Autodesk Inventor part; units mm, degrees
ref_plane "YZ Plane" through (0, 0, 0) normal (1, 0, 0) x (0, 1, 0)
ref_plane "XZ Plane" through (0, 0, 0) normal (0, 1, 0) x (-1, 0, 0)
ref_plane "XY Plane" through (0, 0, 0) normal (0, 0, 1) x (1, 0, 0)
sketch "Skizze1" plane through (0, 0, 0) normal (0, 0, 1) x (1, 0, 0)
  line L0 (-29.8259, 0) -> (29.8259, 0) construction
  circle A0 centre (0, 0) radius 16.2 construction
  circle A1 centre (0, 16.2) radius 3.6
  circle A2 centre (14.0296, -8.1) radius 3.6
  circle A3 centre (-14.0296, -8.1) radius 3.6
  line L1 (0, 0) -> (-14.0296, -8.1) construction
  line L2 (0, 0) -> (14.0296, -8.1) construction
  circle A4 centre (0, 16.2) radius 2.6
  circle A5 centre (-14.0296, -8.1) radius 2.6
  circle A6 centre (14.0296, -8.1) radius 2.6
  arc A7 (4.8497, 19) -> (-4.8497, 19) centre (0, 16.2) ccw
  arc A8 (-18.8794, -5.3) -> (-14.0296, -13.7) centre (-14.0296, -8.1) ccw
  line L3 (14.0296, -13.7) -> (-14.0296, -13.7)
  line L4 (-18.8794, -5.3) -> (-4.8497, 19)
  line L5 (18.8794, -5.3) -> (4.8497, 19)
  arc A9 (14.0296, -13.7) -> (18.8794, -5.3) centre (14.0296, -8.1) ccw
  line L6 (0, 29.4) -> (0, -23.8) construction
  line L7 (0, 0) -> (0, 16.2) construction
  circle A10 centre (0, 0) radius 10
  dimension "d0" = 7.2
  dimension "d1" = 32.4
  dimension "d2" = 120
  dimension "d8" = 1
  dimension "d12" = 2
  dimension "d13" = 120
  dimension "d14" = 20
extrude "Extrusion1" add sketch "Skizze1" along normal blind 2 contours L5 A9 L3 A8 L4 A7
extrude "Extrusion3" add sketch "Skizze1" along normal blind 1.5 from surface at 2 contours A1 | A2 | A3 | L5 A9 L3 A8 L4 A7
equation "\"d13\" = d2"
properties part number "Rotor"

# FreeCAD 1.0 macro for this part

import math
import FreeCAD as App
import Part
import Sketcher
Q = App.Units.Quantity

doc = App.newDocument("Part")
body = doc.addObject("PartDesign::Body", "Body")

# Sketch on XY plane
sketch1 = body.newObject("Sketcher::SketchObject", "Sketch")
sketch1.AttachmentSupport = (doc.getObject("XY_Plane"), [""])
sketch1.MapMode = "FlatFace"
sketch1.addGeometry(Part.LineSegment(App.Vector(18.9, -5.3, 0), App.Vector(4.8, 19, 0)), False)
sketch1.addGeometry(Part.ArcOfCircle(Part.Circle(App.Vector(0, 16.2, 0), App.Vector(0, 0, 1), 5.6), math.radians(30), math.radians(150)), False)
sketch1.addGeometry(Part.LineSegment(App.Vector(-4.8, 19, 0), App.Vector(-18.9, -5.3, 0)), False)
sketch1.addGeometry(Part.ArcOfCircle(Part.Circle(App.Vector(-14, -8.1, 0), App.Vector(0, 0, 1), 5.6), math.radians(150), math.radians(270)), False)
sketch1.addGeometry(Part.LineSegment(App.Vector(-14, -13.7, 0), App.Vector(14, -13.7, 0)), False)
sketch1.addGeometry(Part.ArcOfCircle(Part.Circle(App.Vector(14, -8.1, 0), App.Vector(0, 0, 1), 5.6), math.radians(-90), math.radians(30)), False)
sketch1.addGeometry(Part.Circle(App.Vector(-14, -8.1, 0), App.Vector(0, 0, 1), 3.6), False)
sketch1.addGeometry(Part.Circle(App.Vector(14, -8.1, 0), App.Vector(0, 0, 1), 3.6), False)
sketch1.addGeometry(Part.Circle(App.Vector(0, 0, 0), App.Vector(0, 0, 1), 10), False)
sketch1.addGeometry(Part.Circle(App.Vector(0, 16.2, 0), App.Vector(0, 0, 1), 3.6), False)
sketch1.addConstraint(Sketcher.Constraint("Tangent", 0, 2, 1, 1))
sketch1.addConstraint(Sketcher.Constraint("Tangent", 1, 2, 2, 1))
sketch1.addConstraint(Sketcher.Constraint("Tangent", 2, 2, 3, 1))
sketch1.addConstraint(Sketcher.Constraint("Tangent", 3, 2, 4, 1))
sketch1.addConstraint(Sketcher.Constraint("Tangent", 4, 2, 5, 1))
sketch1.addConstraint(Sketcher.Constraint("Tangent", 5, 2, 0, 1))
sketch1.addConstraint(Sketcher.Constraint("Horizontal", 4))
sketch1.addConstraint(Sketcher.Constraint("Coincident", 8, 3, -1, 1))
sketch1.addConstraint(Sketcher.Constraint("Coincident", 6, 3, 3, 3))
sketch1.addConstraint(Sketcher.Constraint("Coincident", 7, 3, 5, 3))
sketch1.addConstraint(Sketcher.Constraint("Coincident", 9, 3, 1, 3))
sketch1.addConstraint(Sketcher.Constraint("Equal", 1, 3))
sketch1.addConstraint(Sketcher.Constraint("Equal", 3, 5))
sketch1.addConstraint(Sketcher.Constraint("Equal", 6, 7))
sketch1.addConstraint(Sketcher.Constraint("Equal", 7, 9))
sketch1.addConstraint(Sketcher.Constraint("Symmetric", 0, 2, 1, 2, -2))
sketch1.addConstraint(Sketcher.Constraint("Diameter", 8, Q("20 mm")))
sketch1.addConstraint(Sketcher.Constraint("Diameter", 6, Q("7.2 mm")))
sketch1.addConstraint(Sketcher.Constraint("Angle", 0, Q("120.0002 deg")))
sketch1.addConstraint(Sketcher.Constraint("Radius", 1, Q("5.6 mm")))
sketch1.addConstraint(Sketcher.Constraint("DistanceY", -1, 1, 0, 2, Q("19 mm")))
sketch1.addConstraint(Sketcher.Constraint("DistanceY", 3, 3, -1, 1, Q("8.1 mm")))
pad1 = body.newObject("PartDesign::Pad", "Pad")
pad1.Profile = sketch1
pad1.Length = 2

# Sketch on XY plane
sketch2 = body.newObject("Sketcher::SketchObject", "Sketch001")
sketch2.AttachmentSupport = (doc.getObject("XY_Plane"), [""])
sketch2.MapMode = "FlatFace"
sketch2.AttachmentOffset = App.Placement(App.Vector(0, 0, 2), App.Rotation())
sketch2.addGeometry(Part.LineSegment(App.Vector(18.9, -5.3, 0), App.Vector(4.8, 19, 0)), False)
sketch2.addGeometry(Part.ArcOfCircle(Part.Circle(App.Vector(0, 16.2, 0), App.Vector(0, 0, 1), 5.6), math.radians(30), math.radians(150)), False)
sketch2.addGeometry(Part.LineSegment(App.Vector(-4.8, 19, 0), App.Vector(-18.9, -5.3, 0)), False)
sketch2.addGeometry(Part.ArcOfCircle(Part.Circle(App.Vector(-14, -8.1, 0), App.Vector(0, 0, 1), 5.6), math.radians(150), math.radians(270)), False)
sketch2.addGeometry(Part.LineSegment(App.Vector(-14, -13.7, 0), App.Vector(14, -13.7, 0)), False)
sketch2.addGeometry(Part.ArcOfCircle(Part.Circle(App.Vector(14, -8.1, 0), App.Vector(0, 0, 1), 5.6), math.radians(-90), math.radians(30)), False)
sketch2.addGeometry(Part.Circle(App.Vector(0, 16.2, 0), App.Vector(0, 0, 1), 2.6), False)
sketch2.addGeometry(Part.Circle(App.Vector(0, 0, 0), App.Vector(0, 0, 1), 10), False)
sketch2.addGeometry(Part.Circle(App.Vector(-14, -8.1, 0), App.Vector(0, 0, 1), 2.6), False)
sketch2.addGeometry(Part.Circle(App.Vector(14, -8.1, 0), App.Vector(0, 0, 1), 2.6), False)
sketch2.addConstraint(Sketcher.Constraint("Tangent", 0, 2, 1, 1))
sketch2.addConstraint(Sketcher.Constraint("Tangent", 1, 2, 2, 1))
sketch2.addConstraint(Sketcher.Constraint("Tangent", 2, 2, 3, 1))
sketch2.addConstraint(Sketcher.Constraint("Tangent", 3, 2, 4, 1))
sketch2.addConstraint(Sketcher.Constraint("Tangent", 4, 2, 5, 1))
sketch2.addConstraint(Sketcher.Constraint("Tangent", 5, 2, 0, 1))
sketch2.addConstraint(Sketcher.Constraint("Horizontal", 4))
sketch2.addConstraint(Sketcher.Constraint("Coincident", 7, 3, -1, 1))
sketch2.addConstraint(Sketcher.Constraint("Coincident", 6, 3, 1, 3))
sketch2.addConstraint(Sketcher.Constraint("Coincident", 8, 3, 3, 3))
sketch2.addConstraint(Sketcher.Constraint("Coincident", 9, 3, 5, 3))
sketch2.addConstraint(Sketcher.Constraint("Equal", 1, 3))
sketch2.addConstraint(Sketcher.Constraint("Equal", 3, 5))
sketch2.addConstraint(Sketcher.Constraint("Equal", 6, 8))
sketch2.addConstraint(Sketcher.Constraint("Equal", 8, 9))
sketch2.addConstraint(Sketcher.Constraint("Symmetric", 0, 2, 1, 2, -2))
sketch2.addConstraint(Sketcher.Constraint("Diameter", 7, Q("20 mm")))
sketch2.addConstraint(Sketcher.Constraint("Angle", 0, Q("120.0002 deg")))
sketch2.addConstraint(Sketcher.Constraint("Diameter", 6, Q("5.2 mm")))
sketch2.addConstraint(Sketcher.Constraint("Radius", 1, Q("5.6 mm")))
sketch2.addConstraint(Sketcher.Constraint("DistanceY", -1, 1, 0, 2, Q("19 mm")))
sketch2.addConstraint(Sketcher.Constraint("DistanceY", 3, 3, -1, 1, Q("8.1 mm")))
pad2 = body.newObject("PartDesign::Pad", "Pad001")
pad2.Profile = sketch2
pad2.Length = 1.5

doc.recompute()
